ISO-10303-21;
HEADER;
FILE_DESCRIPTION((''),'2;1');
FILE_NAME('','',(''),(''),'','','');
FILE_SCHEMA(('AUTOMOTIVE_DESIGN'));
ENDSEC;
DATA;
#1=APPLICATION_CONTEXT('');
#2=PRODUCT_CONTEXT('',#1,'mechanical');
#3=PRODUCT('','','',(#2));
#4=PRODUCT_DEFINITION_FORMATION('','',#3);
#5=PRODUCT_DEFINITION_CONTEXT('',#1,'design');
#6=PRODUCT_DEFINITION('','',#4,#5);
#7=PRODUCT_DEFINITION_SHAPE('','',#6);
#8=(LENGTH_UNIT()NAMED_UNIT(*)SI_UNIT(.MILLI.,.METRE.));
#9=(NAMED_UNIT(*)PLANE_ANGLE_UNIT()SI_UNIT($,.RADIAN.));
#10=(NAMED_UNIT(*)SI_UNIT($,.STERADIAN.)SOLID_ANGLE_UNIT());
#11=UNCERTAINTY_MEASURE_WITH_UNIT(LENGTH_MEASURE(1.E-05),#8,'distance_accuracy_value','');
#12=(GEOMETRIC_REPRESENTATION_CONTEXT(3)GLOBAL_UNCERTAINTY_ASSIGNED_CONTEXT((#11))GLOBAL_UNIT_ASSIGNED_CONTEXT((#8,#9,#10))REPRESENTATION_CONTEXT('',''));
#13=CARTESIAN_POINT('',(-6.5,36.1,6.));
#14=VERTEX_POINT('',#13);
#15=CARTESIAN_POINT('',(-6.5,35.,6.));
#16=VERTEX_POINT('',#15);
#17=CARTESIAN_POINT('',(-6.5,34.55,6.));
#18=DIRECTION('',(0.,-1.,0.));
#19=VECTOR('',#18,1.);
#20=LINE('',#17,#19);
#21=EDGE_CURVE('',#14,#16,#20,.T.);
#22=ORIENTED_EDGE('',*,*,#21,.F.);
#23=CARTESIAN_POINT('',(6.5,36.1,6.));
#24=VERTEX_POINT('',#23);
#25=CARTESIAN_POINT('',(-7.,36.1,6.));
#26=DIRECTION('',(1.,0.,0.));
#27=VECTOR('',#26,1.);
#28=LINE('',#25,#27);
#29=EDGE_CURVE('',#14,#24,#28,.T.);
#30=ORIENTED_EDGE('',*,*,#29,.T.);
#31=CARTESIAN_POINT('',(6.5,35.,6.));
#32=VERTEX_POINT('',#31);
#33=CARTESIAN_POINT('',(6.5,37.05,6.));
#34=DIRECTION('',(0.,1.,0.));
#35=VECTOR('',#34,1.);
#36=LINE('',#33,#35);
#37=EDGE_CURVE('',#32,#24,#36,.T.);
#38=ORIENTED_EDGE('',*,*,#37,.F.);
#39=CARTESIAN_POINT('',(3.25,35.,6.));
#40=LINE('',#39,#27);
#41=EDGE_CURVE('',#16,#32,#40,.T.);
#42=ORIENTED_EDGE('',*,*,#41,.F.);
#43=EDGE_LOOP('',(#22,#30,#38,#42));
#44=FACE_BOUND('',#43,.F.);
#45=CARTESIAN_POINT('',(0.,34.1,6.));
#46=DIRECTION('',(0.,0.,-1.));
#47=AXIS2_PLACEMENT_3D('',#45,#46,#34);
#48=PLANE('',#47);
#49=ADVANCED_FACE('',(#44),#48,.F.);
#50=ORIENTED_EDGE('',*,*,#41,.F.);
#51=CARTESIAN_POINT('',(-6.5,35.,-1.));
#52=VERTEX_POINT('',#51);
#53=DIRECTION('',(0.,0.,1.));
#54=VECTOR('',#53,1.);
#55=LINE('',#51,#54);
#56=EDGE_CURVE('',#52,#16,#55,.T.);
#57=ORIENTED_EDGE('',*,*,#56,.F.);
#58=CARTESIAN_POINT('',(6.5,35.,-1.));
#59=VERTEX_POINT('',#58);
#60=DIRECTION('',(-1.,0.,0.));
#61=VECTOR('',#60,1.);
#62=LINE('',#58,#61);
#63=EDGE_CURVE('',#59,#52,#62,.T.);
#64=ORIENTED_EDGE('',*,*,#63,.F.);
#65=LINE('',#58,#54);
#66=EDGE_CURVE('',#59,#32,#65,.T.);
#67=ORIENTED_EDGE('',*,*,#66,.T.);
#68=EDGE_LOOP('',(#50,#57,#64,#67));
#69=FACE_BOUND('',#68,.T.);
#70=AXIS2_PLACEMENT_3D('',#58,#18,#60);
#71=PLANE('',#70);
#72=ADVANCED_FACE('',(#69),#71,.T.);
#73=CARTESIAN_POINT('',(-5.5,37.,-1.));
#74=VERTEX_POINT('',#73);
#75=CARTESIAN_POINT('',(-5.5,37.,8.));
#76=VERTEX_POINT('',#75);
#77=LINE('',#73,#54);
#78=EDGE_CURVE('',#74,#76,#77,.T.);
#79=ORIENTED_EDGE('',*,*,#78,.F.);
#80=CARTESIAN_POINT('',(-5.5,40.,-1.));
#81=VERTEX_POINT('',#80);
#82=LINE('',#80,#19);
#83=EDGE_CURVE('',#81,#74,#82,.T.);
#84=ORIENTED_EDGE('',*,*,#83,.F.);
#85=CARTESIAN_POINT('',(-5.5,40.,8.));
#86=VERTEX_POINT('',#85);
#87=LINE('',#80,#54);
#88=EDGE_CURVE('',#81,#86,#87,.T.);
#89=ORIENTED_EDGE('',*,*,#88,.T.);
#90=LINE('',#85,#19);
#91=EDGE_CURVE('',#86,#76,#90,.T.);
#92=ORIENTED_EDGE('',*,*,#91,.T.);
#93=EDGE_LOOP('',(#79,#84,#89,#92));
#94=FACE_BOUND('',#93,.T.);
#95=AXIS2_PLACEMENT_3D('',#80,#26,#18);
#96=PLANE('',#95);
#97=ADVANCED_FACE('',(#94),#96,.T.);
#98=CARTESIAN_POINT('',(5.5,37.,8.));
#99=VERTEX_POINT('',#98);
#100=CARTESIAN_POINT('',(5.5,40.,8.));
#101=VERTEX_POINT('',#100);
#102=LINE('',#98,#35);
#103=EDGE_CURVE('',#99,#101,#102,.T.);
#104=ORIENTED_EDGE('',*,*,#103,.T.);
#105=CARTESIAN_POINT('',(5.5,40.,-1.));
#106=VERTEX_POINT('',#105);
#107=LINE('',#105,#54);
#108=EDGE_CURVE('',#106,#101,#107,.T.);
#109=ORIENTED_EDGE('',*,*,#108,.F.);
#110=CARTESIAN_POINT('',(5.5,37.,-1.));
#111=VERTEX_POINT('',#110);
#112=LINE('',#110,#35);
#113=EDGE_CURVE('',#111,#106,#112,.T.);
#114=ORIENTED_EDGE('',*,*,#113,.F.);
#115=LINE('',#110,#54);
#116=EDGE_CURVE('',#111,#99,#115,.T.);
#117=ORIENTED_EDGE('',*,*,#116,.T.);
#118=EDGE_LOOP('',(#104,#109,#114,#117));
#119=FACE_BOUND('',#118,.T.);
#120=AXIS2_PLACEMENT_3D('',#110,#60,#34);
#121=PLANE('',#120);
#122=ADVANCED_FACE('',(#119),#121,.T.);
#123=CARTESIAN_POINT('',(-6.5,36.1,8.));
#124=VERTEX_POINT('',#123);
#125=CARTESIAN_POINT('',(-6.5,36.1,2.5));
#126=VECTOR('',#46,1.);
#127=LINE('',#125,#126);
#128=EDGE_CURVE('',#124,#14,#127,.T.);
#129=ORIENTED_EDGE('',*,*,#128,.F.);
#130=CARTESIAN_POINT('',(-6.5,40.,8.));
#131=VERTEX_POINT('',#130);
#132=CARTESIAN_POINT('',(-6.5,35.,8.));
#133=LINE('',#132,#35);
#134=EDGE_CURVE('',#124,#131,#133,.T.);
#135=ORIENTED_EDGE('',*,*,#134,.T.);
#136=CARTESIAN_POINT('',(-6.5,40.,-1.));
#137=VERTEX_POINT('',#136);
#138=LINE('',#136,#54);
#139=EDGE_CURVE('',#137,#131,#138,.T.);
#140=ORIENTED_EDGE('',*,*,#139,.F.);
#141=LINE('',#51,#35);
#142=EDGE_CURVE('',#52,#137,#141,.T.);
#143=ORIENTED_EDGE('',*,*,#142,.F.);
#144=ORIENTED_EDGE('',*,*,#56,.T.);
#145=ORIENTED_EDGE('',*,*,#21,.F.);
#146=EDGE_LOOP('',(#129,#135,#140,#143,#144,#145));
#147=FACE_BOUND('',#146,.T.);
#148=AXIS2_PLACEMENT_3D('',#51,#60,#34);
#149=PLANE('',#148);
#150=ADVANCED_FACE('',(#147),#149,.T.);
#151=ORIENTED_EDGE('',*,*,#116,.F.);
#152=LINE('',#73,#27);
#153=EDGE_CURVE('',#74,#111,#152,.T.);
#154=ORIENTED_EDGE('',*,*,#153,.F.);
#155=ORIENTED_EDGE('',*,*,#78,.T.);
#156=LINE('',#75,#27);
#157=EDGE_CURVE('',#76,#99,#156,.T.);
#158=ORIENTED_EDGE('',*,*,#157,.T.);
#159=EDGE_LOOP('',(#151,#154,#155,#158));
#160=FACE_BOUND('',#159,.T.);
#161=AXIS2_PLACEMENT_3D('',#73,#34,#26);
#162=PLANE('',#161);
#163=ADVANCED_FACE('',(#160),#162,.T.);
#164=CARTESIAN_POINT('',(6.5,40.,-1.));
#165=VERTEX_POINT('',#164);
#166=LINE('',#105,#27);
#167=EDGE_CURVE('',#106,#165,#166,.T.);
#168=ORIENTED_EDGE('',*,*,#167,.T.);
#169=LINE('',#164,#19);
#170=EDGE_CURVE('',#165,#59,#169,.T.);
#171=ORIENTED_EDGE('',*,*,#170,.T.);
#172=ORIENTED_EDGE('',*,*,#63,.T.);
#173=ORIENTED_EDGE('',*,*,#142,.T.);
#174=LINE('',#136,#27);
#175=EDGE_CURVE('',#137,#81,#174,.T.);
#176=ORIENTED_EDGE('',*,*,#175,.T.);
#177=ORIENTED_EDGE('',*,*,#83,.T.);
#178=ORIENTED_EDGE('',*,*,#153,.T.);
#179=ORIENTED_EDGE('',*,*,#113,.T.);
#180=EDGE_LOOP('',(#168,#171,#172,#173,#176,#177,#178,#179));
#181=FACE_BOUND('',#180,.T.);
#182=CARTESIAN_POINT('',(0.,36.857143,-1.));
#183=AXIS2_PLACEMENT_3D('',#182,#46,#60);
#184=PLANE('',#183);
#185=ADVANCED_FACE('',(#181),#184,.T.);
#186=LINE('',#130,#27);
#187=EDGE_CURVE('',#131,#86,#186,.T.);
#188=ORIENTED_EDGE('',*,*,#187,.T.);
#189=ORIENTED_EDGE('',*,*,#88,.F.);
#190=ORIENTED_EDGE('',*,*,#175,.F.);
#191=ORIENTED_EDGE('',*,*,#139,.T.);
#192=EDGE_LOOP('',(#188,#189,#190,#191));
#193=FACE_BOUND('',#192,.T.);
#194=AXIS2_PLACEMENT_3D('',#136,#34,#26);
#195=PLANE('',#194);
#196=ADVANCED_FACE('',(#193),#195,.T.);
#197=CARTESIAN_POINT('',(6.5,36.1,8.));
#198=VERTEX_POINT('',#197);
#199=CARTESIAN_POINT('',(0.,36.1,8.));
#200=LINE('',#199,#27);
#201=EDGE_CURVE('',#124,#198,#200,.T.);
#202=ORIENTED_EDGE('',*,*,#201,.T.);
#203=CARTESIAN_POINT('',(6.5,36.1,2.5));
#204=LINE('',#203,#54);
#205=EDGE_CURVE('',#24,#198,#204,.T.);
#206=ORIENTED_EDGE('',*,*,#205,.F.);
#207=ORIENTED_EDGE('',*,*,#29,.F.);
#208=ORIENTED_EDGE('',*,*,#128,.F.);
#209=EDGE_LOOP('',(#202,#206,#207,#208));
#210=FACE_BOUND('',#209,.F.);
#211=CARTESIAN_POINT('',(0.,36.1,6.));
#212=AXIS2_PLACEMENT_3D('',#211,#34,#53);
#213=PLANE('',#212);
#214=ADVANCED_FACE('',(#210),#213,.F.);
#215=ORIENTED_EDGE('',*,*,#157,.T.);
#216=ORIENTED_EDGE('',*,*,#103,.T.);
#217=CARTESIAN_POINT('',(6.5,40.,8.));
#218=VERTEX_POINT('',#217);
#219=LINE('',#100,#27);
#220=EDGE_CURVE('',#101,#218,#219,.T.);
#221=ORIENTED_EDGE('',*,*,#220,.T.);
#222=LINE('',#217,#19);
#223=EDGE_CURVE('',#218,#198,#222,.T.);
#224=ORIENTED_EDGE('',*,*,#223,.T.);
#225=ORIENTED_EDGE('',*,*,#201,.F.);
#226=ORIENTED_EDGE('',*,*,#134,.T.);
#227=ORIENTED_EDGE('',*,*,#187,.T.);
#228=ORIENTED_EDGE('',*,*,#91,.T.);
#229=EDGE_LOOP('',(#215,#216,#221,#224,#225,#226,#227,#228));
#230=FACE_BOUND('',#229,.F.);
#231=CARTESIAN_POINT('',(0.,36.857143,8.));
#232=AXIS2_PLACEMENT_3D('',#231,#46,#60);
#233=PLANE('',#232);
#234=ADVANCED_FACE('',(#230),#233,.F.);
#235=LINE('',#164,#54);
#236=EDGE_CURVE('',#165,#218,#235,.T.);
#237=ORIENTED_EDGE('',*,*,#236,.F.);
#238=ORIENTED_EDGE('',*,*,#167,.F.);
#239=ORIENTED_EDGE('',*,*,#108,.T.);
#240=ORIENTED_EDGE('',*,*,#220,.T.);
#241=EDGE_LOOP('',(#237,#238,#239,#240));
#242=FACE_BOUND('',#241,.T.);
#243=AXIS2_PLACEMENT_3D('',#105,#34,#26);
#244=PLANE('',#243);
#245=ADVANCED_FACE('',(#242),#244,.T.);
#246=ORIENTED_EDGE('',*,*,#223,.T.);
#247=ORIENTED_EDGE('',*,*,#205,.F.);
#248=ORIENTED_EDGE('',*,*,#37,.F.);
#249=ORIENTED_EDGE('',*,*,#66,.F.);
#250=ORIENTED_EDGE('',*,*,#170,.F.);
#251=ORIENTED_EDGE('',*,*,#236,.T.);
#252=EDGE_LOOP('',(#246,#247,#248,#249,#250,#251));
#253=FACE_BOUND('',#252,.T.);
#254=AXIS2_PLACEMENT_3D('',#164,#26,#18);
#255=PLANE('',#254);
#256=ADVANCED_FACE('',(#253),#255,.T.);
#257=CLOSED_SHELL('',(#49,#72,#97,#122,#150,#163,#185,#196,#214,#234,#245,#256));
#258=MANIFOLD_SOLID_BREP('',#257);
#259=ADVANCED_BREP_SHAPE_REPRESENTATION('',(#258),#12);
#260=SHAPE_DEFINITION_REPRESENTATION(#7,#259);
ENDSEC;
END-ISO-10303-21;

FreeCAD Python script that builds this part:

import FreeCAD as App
import Part
import Sketcher

V = App.Vector
Q = App.Units.Quantity


def add_polygon(sketch, points):
    """Adds a closed chain of lines whose ends are joined by coincident constraints."""
    first, n = sketch.GeometryCount, len(points)
    for a, b in zip(points, points[1:] + points[:1]):
        sketch.addGeometry(Part.LineSegment(App.Vector(*a, 0), App.Vector(*b, 0)), False)
    for i in range(n):
        sketch.addConstraint(Sketcher.Constraint("Coincident", first + i, 2, first + (i + 1) % n, 1))

doc = App.newDocument("Part")
body = doc.addObject("PartDesign::Body", "Body")

sketch1 = body.newObject("Sketcher::SketchObject", "Sketch")
sketch1.AttachmentSupport = (doc.getObject("YZ_Plane"), [""])
sketch1.MapMode = "FlatFace"
add_polygon(sketch1, [(34.1, 9), (34.1, 6), (36.1, 6), (36.1, 9)])
sketch1.addConstraint(Sketcher.Constraint("Vertical", 0))
sketch1.addConstraint(Sketcher.Constraint("Horizontal", 1))
sketch1.addConstraint(Sketcher.Constraint("Vertical", 2))
sketch1.addConstraint(Sketcher.Constraint("Horizontal", 3))
sketch1.addConstraint(Sketcher.Constraint("DistanceX", 1, 1, 1, 2, Q("2 mm")))
sketch1.addConstraint(Sketcher.Constraint("DistanceY", 0, 2, 0, 1, Q("3 mm")))
sketch1.addConstraint(Sketcher.Constraint("DistanceY", -1, 1, 0, 2, Q("6 mm")))
sketch1.addConstraint(Sketcher.Constraint("DistanceX", -1, 1, 0, 2, Q("34.1 mm")))
pad1 = body.newObject("PartDesign::Pad", "Pad")
pad1.Profile = sketch1
pad1.Length = 14
pad1.Midplane = True
body2 = doc.addObject("PartDesign::Body", "Body001")

sketch2 = body2.newObject("Sketcher::SketchObject", "Sketch001")
sketch2.AttachmentSupport = (doc.getObject("XY_Plane001"), [""])
sketch2.MapMode = "FlatFace"
sketch2.AttachmentOffset = App.Placement(V(0, 0, -1), App.Rotation())
add_polygon(sketch2, [(-5.5, 37), (-5.5, 40), (-6.5, 40), (-6.5, 35), (6.5, 35), (6.5, 40), (5.5, 40), (5.5, 37)])
sketch2.addConstraint(Sketcher.Constraint("Vertical", 0))
sketch2.addConstraint(Sketcher.Constraint("Horizontal", 1))
sketch2.addConstraint(Sketcher.Constraint("Vertical", 2))
sketch2.addConstraint(Sketcher.Constraint("Horizontal", 3))
sketch2.addConstraint(Sketcher.Constraint("Vertical", 4))
sketch2.addConstraint(Sketcher.Constraint("Horizontal", 5))
sketch2.addConstraint(Sketcher.Constraint("Vertical", 6))
sketch2.addConstraint(Sketcher.Constraint("Horizontal", 7))
sketch2.addConstraint(Sketcher.Constraint("Symmetric", 1, 2, 4, 2, -2))
sketch2.addConstraint(Sketcher.Constraint("Equal", 1, 5))
sketch2.addConstraint(Sketcher.Constraint("DistanceX", 1, 2, 1, 1, Q("1 mm")))
sketch2.addConstraint(Sketcher.Constraint("DistanceX", 3, 1, 3, 2, Q("13 mm")))
sketch2.addConstraint(Sketcher.Constraint("DistanceY", 0, 1, 0, 2, Q("3 mm")))
sketch2.addConstraint(Sketcher.Constraint("DistanceY", 2, 2, 2, 1, Q("5 mm")))
sketch2.addConstraint(Sketcher.Constraint("DistanceY", -1, 1, 0, 2, Q("40 mm")))
pad2 = body2.newObject("PartDesign::Pad", "Pad001")
pad2.Profile = sketch2
pad2.Length = 9
doc.recompute()

boolean = body2.newObject("PartDesign::Boolean", "Boolean")
boolean.Type = "Cut"
boolean.addObjects([body])

doc.recompute()
